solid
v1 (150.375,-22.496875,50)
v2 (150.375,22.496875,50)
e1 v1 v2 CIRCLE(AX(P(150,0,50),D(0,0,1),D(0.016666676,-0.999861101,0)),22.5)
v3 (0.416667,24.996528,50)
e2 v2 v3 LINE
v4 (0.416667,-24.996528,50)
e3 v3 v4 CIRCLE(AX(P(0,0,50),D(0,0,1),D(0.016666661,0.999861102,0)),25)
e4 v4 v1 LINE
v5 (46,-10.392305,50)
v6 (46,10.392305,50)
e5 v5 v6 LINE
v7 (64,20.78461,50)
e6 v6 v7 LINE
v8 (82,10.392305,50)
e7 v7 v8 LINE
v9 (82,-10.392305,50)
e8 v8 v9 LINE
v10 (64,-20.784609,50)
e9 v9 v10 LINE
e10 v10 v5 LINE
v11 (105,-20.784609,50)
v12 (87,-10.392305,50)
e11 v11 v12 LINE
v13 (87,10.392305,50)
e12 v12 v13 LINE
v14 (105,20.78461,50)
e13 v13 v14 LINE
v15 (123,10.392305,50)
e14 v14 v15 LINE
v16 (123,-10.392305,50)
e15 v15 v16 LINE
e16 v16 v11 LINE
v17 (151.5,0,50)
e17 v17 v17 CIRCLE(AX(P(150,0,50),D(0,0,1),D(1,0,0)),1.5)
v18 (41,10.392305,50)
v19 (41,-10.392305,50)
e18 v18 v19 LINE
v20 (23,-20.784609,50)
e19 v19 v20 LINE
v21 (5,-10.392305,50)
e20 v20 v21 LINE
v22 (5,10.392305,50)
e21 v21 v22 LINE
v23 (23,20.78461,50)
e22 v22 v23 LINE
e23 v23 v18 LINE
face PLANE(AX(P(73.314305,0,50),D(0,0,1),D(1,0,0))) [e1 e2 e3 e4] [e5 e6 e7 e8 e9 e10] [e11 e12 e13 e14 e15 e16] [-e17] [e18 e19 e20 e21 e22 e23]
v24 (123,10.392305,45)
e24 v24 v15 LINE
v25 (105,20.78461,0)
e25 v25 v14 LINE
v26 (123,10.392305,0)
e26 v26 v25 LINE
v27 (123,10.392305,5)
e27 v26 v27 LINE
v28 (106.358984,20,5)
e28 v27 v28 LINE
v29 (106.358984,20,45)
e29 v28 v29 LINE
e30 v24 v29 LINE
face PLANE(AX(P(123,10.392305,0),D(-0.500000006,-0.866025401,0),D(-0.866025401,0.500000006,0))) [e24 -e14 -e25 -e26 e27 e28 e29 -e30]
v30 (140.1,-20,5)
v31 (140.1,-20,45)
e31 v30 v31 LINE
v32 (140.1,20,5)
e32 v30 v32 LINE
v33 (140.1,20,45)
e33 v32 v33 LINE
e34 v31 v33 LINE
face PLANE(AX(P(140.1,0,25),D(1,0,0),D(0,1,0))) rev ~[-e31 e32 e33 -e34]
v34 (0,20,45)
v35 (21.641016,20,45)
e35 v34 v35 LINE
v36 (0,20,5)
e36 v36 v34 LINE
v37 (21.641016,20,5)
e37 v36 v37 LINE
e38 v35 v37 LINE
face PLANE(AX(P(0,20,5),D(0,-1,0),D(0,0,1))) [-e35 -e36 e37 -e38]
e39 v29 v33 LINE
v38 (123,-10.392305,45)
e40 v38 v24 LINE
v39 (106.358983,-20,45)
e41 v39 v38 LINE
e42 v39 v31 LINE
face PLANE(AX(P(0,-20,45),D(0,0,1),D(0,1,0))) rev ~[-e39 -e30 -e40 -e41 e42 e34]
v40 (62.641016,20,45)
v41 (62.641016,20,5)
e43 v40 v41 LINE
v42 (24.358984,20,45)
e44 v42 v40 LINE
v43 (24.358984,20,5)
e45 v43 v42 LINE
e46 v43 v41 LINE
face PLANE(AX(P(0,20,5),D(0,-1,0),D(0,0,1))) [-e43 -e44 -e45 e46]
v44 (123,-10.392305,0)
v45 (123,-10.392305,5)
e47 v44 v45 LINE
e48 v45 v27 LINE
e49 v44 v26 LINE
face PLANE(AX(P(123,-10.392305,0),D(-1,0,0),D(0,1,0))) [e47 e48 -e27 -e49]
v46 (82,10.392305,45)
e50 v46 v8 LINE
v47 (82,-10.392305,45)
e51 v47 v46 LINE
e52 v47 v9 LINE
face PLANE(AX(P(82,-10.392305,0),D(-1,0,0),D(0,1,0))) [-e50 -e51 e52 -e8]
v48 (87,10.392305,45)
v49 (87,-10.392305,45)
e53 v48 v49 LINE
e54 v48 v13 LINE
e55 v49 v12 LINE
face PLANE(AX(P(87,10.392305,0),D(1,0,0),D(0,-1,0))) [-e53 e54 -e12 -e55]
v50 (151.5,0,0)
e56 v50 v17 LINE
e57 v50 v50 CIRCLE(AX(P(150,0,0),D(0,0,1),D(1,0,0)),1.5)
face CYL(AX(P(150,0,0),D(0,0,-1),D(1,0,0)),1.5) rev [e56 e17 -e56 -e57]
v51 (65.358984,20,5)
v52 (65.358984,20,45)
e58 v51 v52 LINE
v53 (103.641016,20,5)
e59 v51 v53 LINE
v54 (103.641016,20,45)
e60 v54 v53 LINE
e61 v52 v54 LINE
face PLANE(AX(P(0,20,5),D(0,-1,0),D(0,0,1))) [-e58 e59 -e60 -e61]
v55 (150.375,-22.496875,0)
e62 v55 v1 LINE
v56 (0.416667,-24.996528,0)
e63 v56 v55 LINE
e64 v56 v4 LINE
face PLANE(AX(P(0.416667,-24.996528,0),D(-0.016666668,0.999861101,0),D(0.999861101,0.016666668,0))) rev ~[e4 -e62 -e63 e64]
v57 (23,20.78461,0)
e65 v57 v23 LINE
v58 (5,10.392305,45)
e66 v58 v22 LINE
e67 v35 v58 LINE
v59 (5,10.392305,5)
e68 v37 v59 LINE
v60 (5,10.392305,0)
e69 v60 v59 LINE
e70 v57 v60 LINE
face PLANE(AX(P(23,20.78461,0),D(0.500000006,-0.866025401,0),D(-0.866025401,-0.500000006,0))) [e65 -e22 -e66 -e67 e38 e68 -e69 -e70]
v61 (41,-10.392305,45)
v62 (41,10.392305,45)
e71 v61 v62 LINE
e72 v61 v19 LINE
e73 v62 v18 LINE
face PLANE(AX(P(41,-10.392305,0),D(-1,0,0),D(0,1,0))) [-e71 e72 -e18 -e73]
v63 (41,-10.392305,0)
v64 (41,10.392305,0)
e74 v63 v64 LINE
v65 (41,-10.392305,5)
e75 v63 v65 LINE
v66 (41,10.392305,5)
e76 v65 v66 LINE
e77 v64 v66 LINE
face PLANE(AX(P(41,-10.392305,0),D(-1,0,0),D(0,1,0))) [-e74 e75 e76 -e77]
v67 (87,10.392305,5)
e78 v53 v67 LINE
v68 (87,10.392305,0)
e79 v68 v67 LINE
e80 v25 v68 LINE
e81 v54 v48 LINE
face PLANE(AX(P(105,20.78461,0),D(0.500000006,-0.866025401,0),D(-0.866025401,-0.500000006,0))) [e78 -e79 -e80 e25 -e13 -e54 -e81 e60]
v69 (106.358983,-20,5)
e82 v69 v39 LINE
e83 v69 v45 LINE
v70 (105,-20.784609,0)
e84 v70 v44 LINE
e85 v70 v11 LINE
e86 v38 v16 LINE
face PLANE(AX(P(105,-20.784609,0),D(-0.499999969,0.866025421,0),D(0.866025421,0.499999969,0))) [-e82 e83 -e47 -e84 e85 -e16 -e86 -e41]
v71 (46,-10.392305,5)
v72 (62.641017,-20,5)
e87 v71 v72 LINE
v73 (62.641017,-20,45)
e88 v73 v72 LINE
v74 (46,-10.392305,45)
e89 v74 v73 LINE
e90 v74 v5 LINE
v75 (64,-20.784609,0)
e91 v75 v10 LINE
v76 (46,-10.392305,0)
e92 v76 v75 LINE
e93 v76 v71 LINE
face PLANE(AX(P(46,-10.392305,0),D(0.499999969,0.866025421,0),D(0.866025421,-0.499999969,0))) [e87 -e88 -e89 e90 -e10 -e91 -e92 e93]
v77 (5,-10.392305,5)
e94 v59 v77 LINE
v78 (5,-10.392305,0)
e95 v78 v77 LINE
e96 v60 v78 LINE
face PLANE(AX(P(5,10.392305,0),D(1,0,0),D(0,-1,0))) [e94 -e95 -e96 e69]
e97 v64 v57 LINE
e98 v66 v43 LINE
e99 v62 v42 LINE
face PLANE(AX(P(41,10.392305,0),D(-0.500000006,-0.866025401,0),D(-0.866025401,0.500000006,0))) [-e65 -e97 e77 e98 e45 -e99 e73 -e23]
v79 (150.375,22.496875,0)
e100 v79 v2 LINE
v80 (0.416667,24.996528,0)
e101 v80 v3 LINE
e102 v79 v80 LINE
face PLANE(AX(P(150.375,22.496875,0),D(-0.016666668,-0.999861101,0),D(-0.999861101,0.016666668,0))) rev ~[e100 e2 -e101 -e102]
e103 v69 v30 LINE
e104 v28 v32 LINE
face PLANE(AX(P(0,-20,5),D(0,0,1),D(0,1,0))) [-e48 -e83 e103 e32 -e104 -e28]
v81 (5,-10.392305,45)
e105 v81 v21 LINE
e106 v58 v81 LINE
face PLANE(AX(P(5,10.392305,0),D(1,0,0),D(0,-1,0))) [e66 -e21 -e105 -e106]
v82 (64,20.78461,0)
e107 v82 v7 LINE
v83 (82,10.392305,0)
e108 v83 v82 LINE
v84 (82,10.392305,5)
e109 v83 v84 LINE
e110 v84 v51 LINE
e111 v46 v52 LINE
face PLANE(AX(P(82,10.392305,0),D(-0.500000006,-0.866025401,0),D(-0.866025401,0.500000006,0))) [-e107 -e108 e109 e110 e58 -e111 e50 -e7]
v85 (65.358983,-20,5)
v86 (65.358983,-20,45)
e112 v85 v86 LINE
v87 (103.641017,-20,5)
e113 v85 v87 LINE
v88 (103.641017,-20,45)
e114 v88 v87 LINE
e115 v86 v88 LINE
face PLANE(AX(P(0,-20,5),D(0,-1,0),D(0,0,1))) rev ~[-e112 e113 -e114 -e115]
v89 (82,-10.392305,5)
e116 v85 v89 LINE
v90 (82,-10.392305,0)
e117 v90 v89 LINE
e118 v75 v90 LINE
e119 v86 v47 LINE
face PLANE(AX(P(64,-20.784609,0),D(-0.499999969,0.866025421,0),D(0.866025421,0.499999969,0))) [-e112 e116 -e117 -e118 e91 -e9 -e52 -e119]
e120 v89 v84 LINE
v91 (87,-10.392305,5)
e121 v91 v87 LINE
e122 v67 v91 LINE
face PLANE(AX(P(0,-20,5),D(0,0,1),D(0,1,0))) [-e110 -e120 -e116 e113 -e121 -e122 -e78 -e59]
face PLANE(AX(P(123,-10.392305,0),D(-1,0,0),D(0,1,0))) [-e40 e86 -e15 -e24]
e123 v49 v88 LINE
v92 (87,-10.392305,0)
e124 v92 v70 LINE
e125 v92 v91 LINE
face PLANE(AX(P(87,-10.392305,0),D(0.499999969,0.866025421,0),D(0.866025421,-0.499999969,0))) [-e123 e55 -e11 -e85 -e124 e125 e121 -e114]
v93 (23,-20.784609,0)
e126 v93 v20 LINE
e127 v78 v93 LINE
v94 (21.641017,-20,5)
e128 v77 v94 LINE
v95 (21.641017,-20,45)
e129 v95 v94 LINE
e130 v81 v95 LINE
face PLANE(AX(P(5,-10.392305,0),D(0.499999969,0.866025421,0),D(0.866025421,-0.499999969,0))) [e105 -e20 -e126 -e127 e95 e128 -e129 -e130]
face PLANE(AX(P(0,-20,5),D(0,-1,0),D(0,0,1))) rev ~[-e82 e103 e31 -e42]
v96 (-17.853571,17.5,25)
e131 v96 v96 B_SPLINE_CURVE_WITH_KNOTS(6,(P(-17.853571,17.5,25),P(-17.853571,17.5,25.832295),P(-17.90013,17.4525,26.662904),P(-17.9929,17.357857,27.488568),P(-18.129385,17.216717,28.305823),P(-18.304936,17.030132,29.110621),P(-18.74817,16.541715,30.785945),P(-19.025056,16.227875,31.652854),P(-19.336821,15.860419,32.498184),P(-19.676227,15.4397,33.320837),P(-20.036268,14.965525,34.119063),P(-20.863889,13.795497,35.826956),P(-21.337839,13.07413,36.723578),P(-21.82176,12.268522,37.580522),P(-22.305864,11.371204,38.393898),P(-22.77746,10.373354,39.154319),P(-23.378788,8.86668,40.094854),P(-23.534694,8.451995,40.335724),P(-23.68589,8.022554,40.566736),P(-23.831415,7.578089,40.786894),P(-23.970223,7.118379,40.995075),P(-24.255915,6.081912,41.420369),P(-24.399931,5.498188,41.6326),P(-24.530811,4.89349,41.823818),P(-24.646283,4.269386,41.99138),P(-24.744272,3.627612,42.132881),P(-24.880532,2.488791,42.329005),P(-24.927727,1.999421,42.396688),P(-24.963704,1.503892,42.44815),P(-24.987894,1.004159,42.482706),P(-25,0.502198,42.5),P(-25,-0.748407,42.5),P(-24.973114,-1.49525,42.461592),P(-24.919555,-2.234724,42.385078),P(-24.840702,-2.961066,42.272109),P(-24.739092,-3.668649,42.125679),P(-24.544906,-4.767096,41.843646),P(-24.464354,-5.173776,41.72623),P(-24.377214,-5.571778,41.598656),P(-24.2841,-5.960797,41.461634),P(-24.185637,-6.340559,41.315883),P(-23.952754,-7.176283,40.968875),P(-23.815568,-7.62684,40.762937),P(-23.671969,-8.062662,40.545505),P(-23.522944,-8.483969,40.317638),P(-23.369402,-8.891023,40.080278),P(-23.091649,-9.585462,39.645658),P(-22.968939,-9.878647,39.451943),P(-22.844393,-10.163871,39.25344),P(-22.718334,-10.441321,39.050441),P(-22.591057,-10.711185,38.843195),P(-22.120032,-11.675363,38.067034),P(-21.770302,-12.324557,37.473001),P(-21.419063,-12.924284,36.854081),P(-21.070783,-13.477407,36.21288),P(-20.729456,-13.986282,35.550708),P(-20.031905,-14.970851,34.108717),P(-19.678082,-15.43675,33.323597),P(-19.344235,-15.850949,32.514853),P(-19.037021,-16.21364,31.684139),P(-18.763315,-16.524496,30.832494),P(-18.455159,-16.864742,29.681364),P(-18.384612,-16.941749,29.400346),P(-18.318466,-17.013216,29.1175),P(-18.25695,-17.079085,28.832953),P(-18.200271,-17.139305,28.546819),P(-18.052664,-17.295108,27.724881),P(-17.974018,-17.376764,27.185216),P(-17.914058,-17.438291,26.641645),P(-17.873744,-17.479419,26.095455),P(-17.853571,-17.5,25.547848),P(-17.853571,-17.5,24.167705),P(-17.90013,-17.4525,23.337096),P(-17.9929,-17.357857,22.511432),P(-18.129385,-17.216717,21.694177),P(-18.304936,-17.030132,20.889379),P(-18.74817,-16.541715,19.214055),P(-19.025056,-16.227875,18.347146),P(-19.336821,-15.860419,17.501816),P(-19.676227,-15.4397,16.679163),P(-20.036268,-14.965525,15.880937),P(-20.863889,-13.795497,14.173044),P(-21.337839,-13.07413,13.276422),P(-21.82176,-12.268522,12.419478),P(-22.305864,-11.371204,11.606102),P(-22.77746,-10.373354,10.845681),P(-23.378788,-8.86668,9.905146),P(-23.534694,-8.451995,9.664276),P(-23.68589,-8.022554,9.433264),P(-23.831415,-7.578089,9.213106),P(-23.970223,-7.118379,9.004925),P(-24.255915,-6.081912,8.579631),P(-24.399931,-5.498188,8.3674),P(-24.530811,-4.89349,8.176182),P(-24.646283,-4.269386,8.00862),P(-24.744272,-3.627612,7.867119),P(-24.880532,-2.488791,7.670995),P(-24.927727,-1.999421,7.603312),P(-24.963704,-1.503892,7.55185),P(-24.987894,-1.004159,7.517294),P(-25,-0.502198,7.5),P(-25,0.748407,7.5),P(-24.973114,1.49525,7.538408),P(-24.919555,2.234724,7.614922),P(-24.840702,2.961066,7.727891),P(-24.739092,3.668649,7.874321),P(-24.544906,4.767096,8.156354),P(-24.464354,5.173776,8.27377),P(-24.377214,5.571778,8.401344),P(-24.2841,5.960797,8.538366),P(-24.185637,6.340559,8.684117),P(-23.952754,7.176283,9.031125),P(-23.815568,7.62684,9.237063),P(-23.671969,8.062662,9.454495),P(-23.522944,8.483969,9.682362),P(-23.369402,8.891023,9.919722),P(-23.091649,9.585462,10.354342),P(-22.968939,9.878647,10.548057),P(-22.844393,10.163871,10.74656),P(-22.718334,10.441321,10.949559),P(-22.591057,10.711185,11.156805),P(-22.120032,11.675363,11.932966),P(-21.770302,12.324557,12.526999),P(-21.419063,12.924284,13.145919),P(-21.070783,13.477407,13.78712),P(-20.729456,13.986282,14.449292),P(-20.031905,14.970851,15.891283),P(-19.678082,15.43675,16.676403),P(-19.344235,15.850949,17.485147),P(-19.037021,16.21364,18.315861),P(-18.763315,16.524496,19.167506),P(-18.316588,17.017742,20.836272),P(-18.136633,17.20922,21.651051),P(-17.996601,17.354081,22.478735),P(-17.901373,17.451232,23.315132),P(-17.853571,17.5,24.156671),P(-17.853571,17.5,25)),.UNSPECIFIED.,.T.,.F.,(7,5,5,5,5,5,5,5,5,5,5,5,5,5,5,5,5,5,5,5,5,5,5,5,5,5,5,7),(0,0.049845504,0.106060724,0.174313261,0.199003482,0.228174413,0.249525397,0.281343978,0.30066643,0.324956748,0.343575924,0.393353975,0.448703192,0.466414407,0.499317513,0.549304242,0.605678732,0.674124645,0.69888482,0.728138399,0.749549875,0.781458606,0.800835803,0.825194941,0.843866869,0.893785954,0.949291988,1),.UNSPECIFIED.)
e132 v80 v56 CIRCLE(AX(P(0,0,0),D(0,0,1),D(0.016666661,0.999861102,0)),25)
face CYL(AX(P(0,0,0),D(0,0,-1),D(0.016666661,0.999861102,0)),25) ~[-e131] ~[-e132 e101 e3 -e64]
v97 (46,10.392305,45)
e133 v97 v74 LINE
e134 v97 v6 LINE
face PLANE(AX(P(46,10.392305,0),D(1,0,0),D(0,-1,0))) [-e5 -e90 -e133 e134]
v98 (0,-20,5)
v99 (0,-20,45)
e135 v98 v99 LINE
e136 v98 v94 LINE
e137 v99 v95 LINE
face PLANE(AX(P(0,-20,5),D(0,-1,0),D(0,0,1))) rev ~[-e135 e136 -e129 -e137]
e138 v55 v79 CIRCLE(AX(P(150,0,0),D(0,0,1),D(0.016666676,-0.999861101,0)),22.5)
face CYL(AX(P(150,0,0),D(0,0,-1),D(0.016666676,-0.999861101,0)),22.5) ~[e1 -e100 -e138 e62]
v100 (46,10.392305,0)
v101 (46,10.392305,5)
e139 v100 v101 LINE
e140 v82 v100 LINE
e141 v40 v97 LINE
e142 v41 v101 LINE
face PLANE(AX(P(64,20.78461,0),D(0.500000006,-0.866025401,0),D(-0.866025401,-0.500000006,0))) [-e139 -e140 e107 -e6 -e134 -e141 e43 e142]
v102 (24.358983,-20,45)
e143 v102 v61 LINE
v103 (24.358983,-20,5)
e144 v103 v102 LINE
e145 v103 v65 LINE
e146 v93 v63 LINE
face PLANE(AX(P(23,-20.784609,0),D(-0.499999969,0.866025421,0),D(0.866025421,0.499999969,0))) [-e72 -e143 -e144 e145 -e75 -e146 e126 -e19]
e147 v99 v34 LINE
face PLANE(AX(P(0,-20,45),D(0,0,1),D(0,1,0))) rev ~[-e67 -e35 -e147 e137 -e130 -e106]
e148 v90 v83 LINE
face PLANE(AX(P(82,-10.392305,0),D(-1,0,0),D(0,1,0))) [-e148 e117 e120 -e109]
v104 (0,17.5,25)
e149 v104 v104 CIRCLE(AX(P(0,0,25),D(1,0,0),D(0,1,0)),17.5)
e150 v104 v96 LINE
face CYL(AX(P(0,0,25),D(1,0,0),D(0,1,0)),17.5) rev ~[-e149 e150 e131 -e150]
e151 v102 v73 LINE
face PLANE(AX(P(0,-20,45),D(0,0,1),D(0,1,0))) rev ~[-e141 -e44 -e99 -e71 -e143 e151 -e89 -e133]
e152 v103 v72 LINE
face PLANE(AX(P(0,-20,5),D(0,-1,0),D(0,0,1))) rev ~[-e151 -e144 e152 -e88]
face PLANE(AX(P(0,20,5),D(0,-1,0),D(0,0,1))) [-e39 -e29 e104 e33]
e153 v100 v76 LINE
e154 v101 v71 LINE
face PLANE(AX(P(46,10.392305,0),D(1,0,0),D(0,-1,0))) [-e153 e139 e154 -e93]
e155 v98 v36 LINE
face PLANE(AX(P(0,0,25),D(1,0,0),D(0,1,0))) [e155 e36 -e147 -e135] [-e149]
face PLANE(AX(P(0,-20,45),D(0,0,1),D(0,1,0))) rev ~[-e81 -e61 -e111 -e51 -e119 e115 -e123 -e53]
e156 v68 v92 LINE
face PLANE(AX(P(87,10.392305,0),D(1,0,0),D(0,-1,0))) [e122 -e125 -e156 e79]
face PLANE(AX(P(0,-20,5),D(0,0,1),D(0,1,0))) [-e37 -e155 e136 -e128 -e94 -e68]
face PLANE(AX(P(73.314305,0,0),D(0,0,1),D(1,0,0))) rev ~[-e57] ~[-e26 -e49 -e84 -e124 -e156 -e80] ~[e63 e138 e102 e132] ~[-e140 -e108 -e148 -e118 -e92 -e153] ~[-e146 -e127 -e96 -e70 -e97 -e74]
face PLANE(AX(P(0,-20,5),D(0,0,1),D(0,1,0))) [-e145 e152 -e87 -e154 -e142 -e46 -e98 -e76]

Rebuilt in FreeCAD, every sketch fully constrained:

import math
import FreeCAD as App
import Part
import Sketcher
from FreeCAD import Vector
Q = App.Units.Quantity

doc = App.newDocument("Part")
body = doc.addObject("PartDesign::Body", "Body")

sketch1 = doc.addObject("Sketcher::SketchObject", "Sketch")
body.addObject(sketch1)
sketch1.AttachmentSupport = (doc.XY_Plane, [""])
sketch1.MapMode = "FlatFace"
sketch1.addGeometry([
    Part.LineSegment(Vector(150.375, 22.496875, 0), Vector(0.416667, 24.996528, 0)),
    Part.ArcOfCircle(Part.Circle(Vector(0, 0, 0), Vector(0, 0, 1), 25), math.radians(89.045026), math.radians(270.954974)),
    Part.LineSegment(Vector(0.416667, -24.996528, 0), Vector(150.375, -22.496875, 0)),
    Part.ArcOfCircle(Part.Circle(Vector(150, 0, 0), Vector(0, 0, 1), 22.5), math.radians(-89.045026), math.radians(89.045026)),
    Part.Circle(Vector(150, 0, 0), Vector(0, 0, 1), 1.5),
], False)
sketch1.addConstraint([
    Sketcher.Constraint("Tangent", 0, 2, 1, 1),
    Sketcher.Constraint("Tangent", 1, 2, 2, 1),
    Sketcher.Constraint("Tangent", 2, 2, 3, 1),
    Sketcher.Constraint("Tangent", 3, 2, 0, 1),
    Sketcher.Constraint("Coincident", 1, 3, -1, 1),
    Sketcher.Constraint("Coincident", 4, 3, 3, 3),
    Sketcher.Constraint("PointOnObject", 3, 3, -1),
    Sketcher.Constraint("Diameter", 4, 3.0),
    Sketcher.Constraint("Radius", 1, 25.0),
    Sketcher.Constraint("Radius", 3, 22.5),
    Sketcher.Constraint("DistanceX", -1, 1, 3, 3, 150.0),
])
pad1 = doc.addObject("PartDesign::Pad", "Pad")
body.addObject(pad1)
pad1.Profile = sketch1
pad1.Length = 50

sketch2 = doc.addObject("Sketcher::SketchObject", "Sketch001")
body.addObject(sketch2)
sketch2.AttachmentSupport = (doc.XY_Plane, [""])
sketch2.MapMode = "FlatFace"
sketch2.addGeometry([
    Part.LineSegment(Vector(5, 10.392305, 0), Vector(5, -10.392305, 0)),
    Part.LineSegment(Vector(5, -10.392305, 0), Vector(23, -20.784609, 0)),
    Part.LineSegment(Vector(23, -20.784609, 0), Vector(41, -10.392305, 0)),
    Part.LineSegment(Vector(41, -10.392305, 0), Vector(41, 10.392305, 0)),
    Part.LineSegment(Vector(41, 10.392305, 0), Vector(23, 20.78461, 0)),
    Part.LineSegment(Vector(23, 20.78461, 0), Vector(5, 10.392305, 0)),
    Part.LineSegment(Vector(82, -10.392305, 0), Vector(82, 10.392305, 0)),
    Part.LineSegment(Vector(82, 10.392305, 0), Vector(64, 20.78461, 0)),
    Part.LineSegment(Vector(64, 20.78461, 0), Vector(46, 10.392305, 0)),
    Part.LineSegment(Vector(46, 10.392305, 0), Vector(46, -10.392305, 0)),
    Part.LineSegment(Vector(46, -10.392305, 0), Vector(64, -20.784609, 0)),
    Part.LineSegment(Vector(64, -20.784609, 0), Vector(82, -10.392305, 0)),
    Part.LineSegment(Vector(87, 10.392305, 0), Vector(87, -10.392305, 0)),
    Part.LineSegment(Vector(87, -10.392305, 0), Vector(105, -20.784609, 0)),
    Part.LineSegment(Vector(105, -20.784609, 0), Vector(123, -10.392305, 0)),
    Part.LineSegment(Vector(123, -10.392305, 0), Vector(123, 10.392305, 0)),
    Part.LineSegment(Vector(123, 10.392305, 0), Vector(105, 20.78461, 0)),
    Part.LineSegment(Vector(105, 20.78461, 0), Vector(87, 10.392305, 0)),
], False)
sketch2.addConstraint([
    Sketcher.Constraint("Coincident", 0, 2, 1, 1),
    Sketcher.Constraint("Coincident", 1, 2, 2, 1),
    Sketcher.Constraint("Coincident", 2, 2, 3, 1),
    Sketcher.Constraint("Coincident", 3, 2, 4, 1),
    Sketcher.Constraint("Coincident", 4, 2, 5, 1),
    Sketcher.Constraint("Coincident", 5, 2, 0, 1),
    Sketcher.Constraint("Coincident", 6, 2, 7, 1),
    Sketcher.Constraint("Coincident", 7, 2, 8, 1),
    Sketcher.Constraint("Coincident", 8, 2, 9, 1),
    Sketcher.Constraint("Coincident", 9, 2, 10, 1),
    Sketcher.Constraint("Coincident", 10, 2, 11, 1),
    Sketcher.Constraint("Coincident", 11, 2, 6, 1),
    Sketcher.Constraint("Coincident", 12, 2, 13, 1),
    Sketcher.Constraint("Coincident", 13, 2, 14, 1),
    Sketcher.Constraint("Coincident", 14, 2, 15, 1),
    Sketcher.Constraint("Coincident", 15, 2, 16, 1),
    Sketcher.Constraint("Coincident", 16, 2, 17, 1),
    Sketcher.Constraint("Coincident", 17, 2, 12, 1),
    Sketcher.Constraint("Vertical", 0),
    Sketcher.Constraint("Vertical", 3),
    Sketcher.Constraint("Vertical", 6),
    Sketcher.Constraint("Vertical", 9),
    Sketcher.Constraint("Vertical", 12),
    Sketcher.Constraint("Vertical", 15),
    Sketcher.Constraint("Symmetric", 1, 2, 4, 2, -1),
    Sketcher.Constraint("Symmetric", 7, 2, 10, 2, -1),
    Sketcher.Constraint("Symmetric", 13, 2, 16, 2, -1),
    Sketcher.Constraint("Parallel", 1, 4),
    Sketcher.Constraint("Parallel", 2, 5),
    Sketcher.Constraint("Parallel", 4, 7),
    Sketcher.Constraint("Parallel", 5, 8),
    Sketcher.Constraint("Parallel", 7, 10),
    Sketcher.Constraint("Parallel", 8, 11),
    Sketcher.Constraint("Parallel", 10, 13),
    Sketcher.Constraint("Parallel", 11, 14),
    Sketcher.Constraint("Parallel", 13, 16),
    Sketcher.Constraint("Parallel", 14, 17),
    Sketcher.Constraint("Horizontal", 0, 2, 2, 2),
    Sketcher.Constraint("Horizontal", 3, 2, 5, 2),
    Sketcher.Constraint("Horizontal", 5, 2, 6, 2),
    Sketcher.Constraint("Horizontal", 4, 2, 7, 2),
    Sketcher.Constraint("Horizontal", 6, 2, 8, 2),
    Sketcher.Constraint("Horizontal", 11, 2, 12, 2),
    Sketcher.Constraint("Horizontal", 10, 2, 13, 2),
    Sketcher.Constraint("Horizontal", 12, 2, 14, 2),
    Sketcher.Constraint("Angle", 1, Q("-29.999998 deg")),
    Sketcher.Constraint("DistanceX", -1, 1, 0, 2, 5.0),
    Sketcher.Constraint("DistanceX", -1, 1, 1, 2, 23.0),
    Sketcher.Constraint("DistanceX", -1, 1, 6, 2, 82.0),
    Sketcher.Constraint("DistanceX", -1, 1, 12, 2, 87.0),
    Sketcher.Constraint("DistanceY", 0, 2, 0, 1, 20.78461),
])
pocket1 = doc.addObject("PartDesign::Pocket", "Pocket")
body.addObject(pocket1)
pocket1.Profile = sketch2
pocket1.Length = 60
pocket1.Reversed = True

sketch3 = doc.addObject("Sketcher::SketchObject", "Sketch002")
body.addObject(sketch3)
sketch3.AttachmentSupport = (doc.YZ_Plane, [""])
sketch3.MapMode = "FlatFace"
sketch3.addGeometry([
    Part.LineSegment(Vector(-20, 45, 0), Vector(-20, 5, 0)),
    Part.LineSegment(Vector(-20, 5, 0), Vector(20, 5, 0)),
    Part.LineSegment(Vector(20, 5, 0), Vector(20, 45, 0)),
    Part.LineSegment(Vector(20, 45, 0), Vector(-20, 45, 0)),
], False)
sketch3.addConstraint([
    Sketcher.Constraint("Coincident", 0, 2, 1, 1),
    Sketcher.Constraint("Coincident", 1, 2, 2, 1),
    Sketcher.Constraint("Coincident", 2, 2, 3, 1),
    Sketcher.Constraint("Coincident", 3, 2, 0, 1),
    Sketcher.Constraint("Vertical", 0),
    Sketcher.Constraint("Horizontal", 1),
    Sketcher.Constraint("Vertical", 2),
    Sketcher.Constraint("Horizontal", 3),
    Sketcher.Constraint("Equal", 3, 0),
    Sketcher.Constraint("DistanceX", 1, 1, 1, 2, 40.0),
    Sketcher.Constraint("DistanceX", 0, 2, -1, 1, 20.0),
    Sketcher.Constraint("DistanceY", -1, 1, 0, 2, 5.0),
])
pocket2 = doc.addObject("PartDesign::Pocket", "Pocket001")
body.addObject(pocket2)
pocket2.Profile = sketch3
pocket2.Length = 140.1
pocket2.Reversed = True

sketch4 = doc.addObject("Sketcher::SketchObject", "Sketch003")
body.addObject(sketch4)
sketch4.AttachmentSupport = (doc.YZ_Plane, [""])
sketch4.MapMode = "FlatFace"
sketch4.addGeometry(Part.Circle(Vector(0, 25, 0), Vector(0, 0, 1), 17.5), False)
sketch4.addConstraint([
    Sketcher.Constraint("PointOnObject", 0, 3, -2),
    Sketcher.Constraint("Diameter", 0, 35.0),
    Sketcher.Constraint("DistanceY", -1, 1, 0, 3, 25.0),
])
pocket3 = doc.addObject("PartDesign::Pocket", "Pocket002")
body.addObject(pocket3)
pocket3.Profile = sketch4
pocket3.Type = "ThroughAll"

doc.recompute()
